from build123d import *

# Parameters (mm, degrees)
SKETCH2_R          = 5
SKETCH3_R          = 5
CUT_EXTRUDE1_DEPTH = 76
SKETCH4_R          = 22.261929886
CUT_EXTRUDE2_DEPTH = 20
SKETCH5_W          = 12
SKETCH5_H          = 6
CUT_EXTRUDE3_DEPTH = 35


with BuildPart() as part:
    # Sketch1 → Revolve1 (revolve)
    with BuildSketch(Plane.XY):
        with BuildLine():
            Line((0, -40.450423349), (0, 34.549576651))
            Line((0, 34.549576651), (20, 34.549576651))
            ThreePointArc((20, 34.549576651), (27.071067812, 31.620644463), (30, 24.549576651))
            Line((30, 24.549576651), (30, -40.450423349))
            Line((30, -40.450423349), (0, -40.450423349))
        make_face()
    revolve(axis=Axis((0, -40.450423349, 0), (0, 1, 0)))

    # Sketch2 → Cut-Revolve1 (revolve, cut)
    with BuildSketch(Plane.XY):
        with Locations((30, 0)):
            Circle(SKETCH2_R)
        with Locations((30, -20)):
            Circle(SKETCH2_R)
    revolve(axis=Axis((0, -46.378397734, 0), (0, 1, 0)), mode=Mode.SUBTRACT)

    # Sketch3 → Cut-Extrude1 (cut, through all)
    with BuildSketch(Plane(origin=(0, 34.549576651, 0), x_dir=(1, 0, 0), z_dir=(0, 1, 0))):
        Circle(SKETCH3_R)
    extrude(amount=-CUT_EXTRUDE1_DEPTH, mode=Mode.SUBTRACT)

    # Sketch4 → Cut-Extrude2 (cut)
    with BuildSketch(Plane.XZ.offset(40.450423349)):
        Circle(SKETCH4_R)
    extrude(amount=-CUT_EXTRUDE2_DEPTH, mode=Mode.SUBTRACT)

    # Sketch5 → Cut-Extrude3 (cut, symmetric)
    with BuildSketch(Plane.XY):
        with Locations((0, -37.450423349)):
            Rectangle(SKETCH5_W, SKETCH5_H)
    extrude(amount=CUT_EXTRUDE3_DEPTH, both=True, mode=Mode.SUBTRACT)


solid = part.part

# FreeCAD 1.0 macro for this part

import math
import FreeCAD as App
import Part
import Sketcher
from FreeCAD import Vector
Q = App.Units.Quantity


def add_polygon(sketch, points):
    """Adds a closed chain of lines whose ends are joined by coincident constraints."""
    first, n = sketch.GeometryCount, len(points)
    for a, b in zip(points, points[1:] + points[:1]):
        sketch.addGeometry(Part.LineSegment(App.Vector(*a, 0), App.Vector(*b, 0)), False)
    for i in range(n):
        sketch.addConstraint(Sketcher.Constraint("Coincident", first + i, 2, first + (i + 1) % n, 1))

doc = App.newDocument("Part")
body = doc.addObject("PartDesign::Body", "Body")

# Sketch on XY plane
sketch1 = doc.addObject("Sketcher::SketchObject", "Sketch")
body.addObject(sketch1)
sketch1.AttachmentSupport = (doc.XY_Plane, [""])
sketch1.MapMode = "FlatFace"
sketch1.addGeometry(Part.LineSegment(Vector(0, 34.549577, 0), Vector(0, -40.450423, 0)), False)
sketch1.addGeometry(Part.LineSegment(Vector(0, -40.450423, 0), Vector(30, -40.450423, 0)), False)
sketch1.addGeometry(Part.LineSegment(Vector(30, -40.450423, 0), Vector(30, 24.549577, 0)), False)
sketch1.addGeometry(Part.ArcOfCircle(Part.Circle(Vector(20, 24.549577, 0), Vector(0, 0, 1), 10), math.radians(0), math.radians(90)), False)
sketch1.addGeometry(Part.LineSegment(Vector(20, 34.549577, 0), Vector(0, 34.549577, 0)), False)
sketch1.addConstraint(Sketcher.Constraint("Coincident", 0, 2, 1, 1))
sketch1.addConstraint(Sketcher.Constraint("Coincident", 1, 2, 2, 1))
sketch1.addConstraint(Sketcher.Constraint("Tangent", 2, 2, 3, 1))
sketch1.addConstraint(Sketcher.Constraint("Tangent", 3, 2, 4, 1))
sketch1.addConstraint(Sketcher.Constraint("Coincident", 4, 2, 0, 1))
sketch1.addConstraint(Sketcher.Constraint("Vertical", 0))
sketch1.addConstraint(Sketcher.Constraint("Horizontal", 1))
sketch1.addConstraint(Sketcher.Constraint("Vertical", 2))
sketch1.addConstraint(Sketcher.Constraint("Horizontal", 4))
sketch1.addConstraint(Sketcher.Constraint("PointOnObject", 0, 2, -2))
sketch1.addConstraint(Sketcher.Constraint("Radius", 3, Q("10 mm")))
sketch1.addConstraint(Sketcher.Constraint("DistanceX", 1, 1, 1, 2, Q("30 mm")))
sketch1.addConstraint(Sketcher.Constraint("DistanceY", 0, 2, 0, 1, Q("75 mm")))
sketch1.addConstraint(Sketcher.Constraint("DistanceY", -1, 1, 3, 3, Q("24.549577 mm")))
revolution = doc.addObject("PartDesign::Revolution", "Revolution")
body.addObject(revolution)
revolution.Profile = sketch1
revolution.ReferenceAxis = (sketch1, ["V_Axis"])
revolution.Angle = 360

# Sketch on XY plane
sketch2 = doc.addObject("Sketcher::SketchObject", "Sketch001")
body.addObject(sketch2)
sketch2.AttachmentSupport = (doc.XY_Plane, [""])
sketch2.MapMode = "FlatFace"
sketch2.addGeometry(Part.Circle(Vector(30, 0, 0), Vector(0, 0, 1), 5), False)
sketch2.addGeometry(Part.Circle(Vector(30, -20, 0), Vector(0, 0, 1), 5), False)
sketch2.addConstraint(Sketcher.Constraint("Equal", 0, 1))
sketch2.addConstraint(Sketcher.Constraint("PointOnObject", 0, 3, -1))
sketch2.addConstraint(Sketcher.Constraint("Vertical", 0, 3, 1, 3))
sketch2.addConstraint(Sketcher.Constraint("Diameter", 0, Q("10 mm")))
sketch2.addConstraint(Sketcher.Constraint("DistanceX", -1, 1, 0, 3, Q("30 mm")))
sketch2.addConstraint(Sketcher.Constraint("DistanceY", 1, 3, -1, 1, Q("20 mm")))
groove = doc.addObject("PartDesign::Groove", "Groove")
body.addObject(groove)
groove.Profile = sketch2
groove.ReferenceAxis = (sketch2, ["V_Axis"])
groove.Angle = 360

# Sketch on XZ plane
sketch3 = doc.addObject("Sketcher::SketchObject", "Sketch002")
body.addObject(sketch3)
sketch3.AttachmentSupport = (doc.XZ_Plane, [""])
sketch3.MapMode = "FlatFace"
sketch3.AttachmentOffset = App.Placement(Vector(0, 0, -34.549577), App.Rotation())
sketch3.addGeometry(Part.Circle(Vector(0, 0, 0), Vector(0, 0, 1), 5), False)
sketch3.addConstraint(Sketcher.Constraint("Coincident", 0, 3, -1, 1))
sketch3.addConstraint(Sketcher.Constraint("Diameter", 0, Q("10 mm")))
pocket1 = doc.addObject("PartDesign::Pocket", "Pocket")
body.addObject(pocket1)
pocket1.Profile = sketch3
pocket1.Type = "ThroughAll"
pocket1.Reversed = True

# Sketch on XZ plane
sketch4 = doc.addObject("Sketcher::SketchObject", "Sketch003")
body.addObject(sketch4)
sketch4.AttachmentSupport = (doc.XZ_Plane, [""])
sketch4.MapMode = "FlatFace"
sketch4.AttachmentOffset = App.Placement(Vector(0, 0, 40.450423), App.Rotation())
sketch4.addGeometry(Part.Circle(Vector(0, 0, 0), Vector(0, 0, 1), 22.26193), False)
sketch4.addConstraint(Sketcher.Constraint("Coincident", 0, 3, -1, 1))
sketch4.addConstraint(Sketcher.Constraint("Diameter", 0, Q("44.52386 mm")))
pocket2 = doc.addObject("PartDesign::Pocket", "Pocket001")
body.addObject(pocket2)
pocket2.Profile = sketch4
pocket2.Length = 20

# Sketch on XY plane
sketch5 = doc.addObject("Sketcher::SketchObject", "Sketch004")
body.addObject(sketch5)
sketch5.AttachmentSupport = (doc.XY_Plane, [""])
sketch5.MapMode = "FlatFace"
add_polygon(sketch5, [(-6, -34.450423), (-6, -40.450423), (6, -40.450423), (6, -34.450423)])  # lines 0-3
sketch5.addConstraint(Sketcher.Constraint("Vertical", 0))
sketch5.addConstraint(Sketcher.Constraint("Horizontal", 1))
sketch5.addConstraint(Sketcher.Constraint("Vertical", 2))
sketch5.addConstraint(Sketcher.Constraint("Horizontal", 3))
sketch5.addConstraint(Sketcher.Constraint("DistanceX", 1, 1, 1, 2, Q("12 mm")))
sketch5.addConstraint(Sketcher.Constraint("DistanceY", 0, 2, 0, 1, Q("6 mm")))
sketch5.addConstraint(Sketcher.Constraint("DistanceX", 0, 2, -1, 1, Q("6 mm")))
sketch5.addConstraint(Sketcher.Constraint("DistanceY", 0, 2, -1, 1, Q("40.450423 mm")))
pocket3 = doc.addObject("PartDesign::Pocket", "Pocket002")
body.addObject(pocket3)
pocket3.Profile = sketch5
pocket3.Length = 70
pocket3.Midplane = True

doc.recompute()
